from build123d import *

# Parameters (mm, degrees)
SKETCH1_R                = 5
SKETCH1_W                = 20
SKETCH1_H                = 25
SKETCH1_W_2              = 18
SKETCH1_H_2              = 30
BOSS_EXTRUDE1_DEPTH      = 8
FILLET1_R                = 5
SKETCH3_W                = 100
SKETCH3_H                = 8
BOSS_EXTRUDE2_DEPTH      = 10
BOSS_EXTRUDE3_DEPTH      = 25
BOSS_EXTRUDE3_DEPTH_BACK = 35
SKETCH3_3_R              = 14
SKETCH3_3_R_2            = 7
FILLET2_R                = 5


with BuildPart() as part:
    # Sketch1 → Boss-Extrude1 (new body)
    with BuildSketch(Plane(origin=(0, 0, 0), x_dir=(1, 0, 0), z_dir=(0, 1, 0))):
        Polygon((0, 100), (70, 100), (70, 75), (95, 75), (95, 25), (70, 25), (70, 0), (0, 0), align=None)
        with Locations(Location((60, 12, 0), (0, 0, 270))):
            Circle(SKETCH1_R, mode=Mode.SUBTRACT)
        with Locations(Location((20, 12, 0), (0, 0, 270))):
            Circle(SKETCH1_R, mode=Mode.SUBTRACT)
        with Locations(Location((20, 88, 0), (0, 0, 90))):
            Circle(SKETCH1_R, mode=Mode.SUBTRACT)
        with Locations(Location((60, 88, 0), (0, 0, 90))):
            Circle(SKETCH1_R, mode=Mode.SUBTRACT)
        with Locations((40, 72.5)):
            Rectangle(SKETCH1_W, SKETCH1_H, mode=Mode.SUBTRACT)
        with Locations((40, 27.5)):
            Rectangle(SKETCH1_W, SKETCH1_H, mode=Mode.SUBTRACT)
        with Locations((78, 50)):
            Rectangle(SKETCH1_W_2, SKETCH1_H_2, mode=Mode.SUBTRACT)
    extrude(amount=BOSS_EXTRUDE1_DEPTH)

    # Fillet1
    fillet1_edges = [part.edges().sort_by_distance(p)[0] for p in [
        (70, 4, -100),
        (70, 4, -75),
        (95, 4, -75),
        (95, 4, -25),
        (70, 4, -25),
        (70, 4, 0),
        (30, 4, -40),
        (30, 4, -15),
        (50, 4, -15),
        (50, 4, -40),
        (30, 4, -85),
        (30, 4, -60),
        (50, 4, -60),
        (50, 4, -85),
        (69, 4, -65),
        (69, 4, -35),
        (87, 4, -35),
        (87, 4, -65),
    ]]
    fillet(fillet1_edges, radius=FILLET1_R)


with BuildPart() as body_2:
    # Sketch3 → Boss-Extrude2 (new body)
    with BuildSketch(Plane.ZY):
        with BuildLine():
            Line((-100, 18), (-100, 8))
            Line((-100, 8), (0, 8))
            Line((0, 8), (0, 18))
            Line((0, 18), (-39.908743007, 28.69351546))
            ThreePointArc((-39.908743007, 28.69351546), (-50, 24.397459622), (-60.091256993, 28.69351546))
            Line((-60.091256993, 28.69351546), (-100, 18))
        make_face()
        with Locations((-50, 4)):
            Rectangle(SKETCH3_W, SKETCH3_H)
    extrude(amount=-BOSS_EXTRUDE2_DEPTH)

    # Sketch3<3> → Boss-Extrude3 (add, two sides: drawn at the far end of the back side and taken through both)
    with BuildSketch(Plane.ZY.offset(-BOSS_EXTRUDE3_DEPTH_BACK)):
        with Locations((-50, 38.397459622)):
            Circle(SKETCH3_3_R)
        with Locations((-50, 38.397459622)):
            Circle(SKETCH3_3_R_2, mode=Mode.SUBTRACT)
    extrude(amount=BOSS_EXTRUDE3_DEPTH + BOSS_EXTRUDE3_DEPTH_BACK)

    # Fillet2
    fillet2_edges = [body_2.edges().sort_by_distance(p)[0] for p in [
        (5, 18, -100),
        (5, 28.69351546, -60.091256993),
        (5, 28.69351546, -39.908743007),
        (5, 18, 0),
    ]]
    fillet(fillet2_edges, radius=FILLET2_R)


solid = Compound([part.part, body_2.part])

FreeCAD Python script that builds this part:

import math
import FreeCAD as App
import Part
import Sketcher
from FreeCAD import Vector
Q = App.Units.Quantity


def edges_at(feature, points):
    """Names of the edges that pass closest to the given points."""
    edges = feature.Shape.Edges
    near = lambda p: min(range(len(edges)), key=lambda i: edges[i].distToShape(Part.Vertex(*p))[0])
    return sorted({f"Edge{near(p) + 1}" for p in points})

doc = App.newDocument("Part")
body = doc.addObject("PartDesign::Body", "Body")

sketch1 = doc.addObject("Sketcher::SketchObject", "Sketch")
body.addObject(sketch1)
sketch1.AttachmentSupport = (doc.XZ_Plane, [""])
sketch1.MapMode = "FlatFace"
sketch1.addGeometry([
    Part.LineSegment(Vector(70, -100, 0), Vector(0, -100, 0)),
    Part.LineSegment(Vector(0, -100, 0), Vector(0, 0, 0)),
    Part.LineSegment(Vector(0, 0, 0), Vector(70, 0, 0)),
    Part.LineSegment(Vector(70, 0, 0), Vector(70, -25, 0)),
    Part.LineSegment(Vector(70, -25, 0), Vector(95, -25, 0)),
    Part.LineSegment(Vector(95, -25, 0), Vector(95, -75, 0)),
    Part.LineSegment(Vector(95, -75, 0), Vector(70, -75, 0)),
    Part.LineSegment(Vector(70, -75, 0), Vector(70, -100, 0)),
    Part.Circle(Vector(60, -12, 0), Vector(0, 0, 1), 5),
    Part.LineSegment(Vector(30, -15, 0), Vector(30, -40, 0)),
    Part.LineSegment(Vector(30, -40, 0), Vector(50, -40, 0)),
    Part.LineSegment(Vector(50, -40, 0), Vector(50, -15, 0)),
    Part.LineSegment(Vector(50, -15, 0), Vector(30, -15, 0)),
    Part.Circle(Vector(20, -12, 0), Vector(0, 0, 1), 5),
    Part.LineSegment(Vector(69, -35, 0), Vector(69, -65, 0)),
    Part.LineSegment(Vector(69, -65, 0), Vector(87, -65, 0)),
    Part.LineSegment(Vector(87, -65, 0), Vector(87, -35, 0)),
    Part.LineSegment(Vector(87, -35, 0), Vector(69, -35, 0)),
    Part.Circle(Vector(60, -88, 0), Vector(0, 0, 1), 5),
    Part.LineSegment(Vector(30, -60, 0), Vector(30, -85, 0)),
    Part.LineSegment(Vector(30, -85, 0), Vector(50, -85, 0)),
    Part.LineSegment(Vector(50, -85, 0), Vector(50, -60, 0)),
    Part.LineSegment(Vector(50, -60, 0), Vector(30, -60, 0)),
    Part.Circle(Vector(20, -88, 0), Vector(0, 0, 1), 5),
], False)
sketch1.addConstraint([
    Sketcher.Constraint("Coincident", 0, 2, 1, 1),
    Sketcher.Constraint("Coincident", 1, 2, 2, 1),
    Sketcher.Constraint("Coincident", 2, 2, 3, 1),
    Sketcher.Constraint("Coincident", 3, 2, 4, 1),
    Sketcher.Constraint("Coincident", 4, 2, 5, 1),
    Sketcher.Constraint("Coincident", 5, 2, 6, 1),
    Sketcher.Constraint("Coincident", 6, 2, 7, 1),
    Sketcher.Constraint("Coincident", 7, 2, 0, 1),
    Sketcher.Constraint("Coincident", 9, 2, 10, 1),
    Sketcher.Constraint("Coincident", 10, 2, 11, 1),
    Sketcher.Constraint("Coincident", 11, 2, 12, 1),
    Sketcher.Constraint("Coincident", 12, 2, 9, 1),
    Sketcher.Constraint("Coincident", 14, 2, 15, 1),
    Sketcher.Constraint("Coincident", 15, 2, 16, 1),
    Sketcher.Constraint("Coincident", 16, 2, 17, 1),
    Sketcher.Constraint("Coincident", 17, 2, 14, 1),
    Sketcher.Constraint("Coincident", 19, 2, 20, 1),
    Sketcher.Constraint("Coincident", 20, 2, 21, 1),
    Sketcher.Constraint("Coincident", 21, 2, 22, 1),
    Sketcher.Constraint("Coincident", 22, 2, 19, 1),
    Sketcher.Constraint("Horizontal", 0),
    Sketcher.Constraint("Vertical", 1),
    Sketcher.Constraint("Horizontal", 2),
    Sketcher.Constraint("Vertical", 3),
    Sketcher.Constraint("Horizontal", 4),
    Sketcher.Constraint("Vertical", 5),
    Sketcher.Constraint("Horizontal", 6),
    Sketcher.Constraint("Vertical", 7),
    Sketcher.Constraint("Vertical", 9),
    Sketcher.Constraint("Horizontal", 10),
    Sketcher.Constraint("Vertical", 11),
    Sketcher.Constraint("Horizontal", 12),
    Sketcher.Constraint("Vertical", 14),
    Sketcher.Constraint("Horizontal", 15),
    Sketcher.Constraint("Vertical", 16),
    Sketcher.Constraint("Horizontal", 17),
    Sketcher.Constraint("Vertical", 19),
    Sketcher.Constraint("Horizontal", 20),
    Sketcher.Constraint("Vertical", 21),
    Sketcher.Constraint("Horizontal", 22),
    Sketcher.Constraint("Coincident", 1, 2, -1, 1),
    Sketcher.Constraint("Equal", 8, 13),
    Sketcher.Constraint("Equal", 13, 18),
    Sketcher.Constraint("Equal", 18, 23),
    Sketcher.Constraint("Horizontal", 8, 3, 13, 3),
    Sketcher.Constraint("Horizontal", 18, 3, 23, 3),
    Sketcher.Constraint("Vertical", 8, 3, 18, 3),
    Sketcher.Constraint("Vertical", 13, 3, 23, 3),
    Sketcher.Constraint("Vertical", 3, 2, 6, 2),
    Sketcher.Constraint("Vertical", 12, 2, 19, 2),
    Sketcher.Constraint("Vertical", 11, 2, 20, 2),
    Sketcher.Constraint("Equal", 6, 3),
    Sketcher.Constraint("Equal", 3, 7),
    Sketcher.Constraint("Equal", 7, 9),
    Sketcher.Constraint("Equal", 11, 19),
    Sketcher.Constraint("Diameter", 8, 10.0),
    Sketcher.Constraint("DistanceX", 0, 2, 0, 1, 70.0),
    Sketcher.Constraint("DistanceX", 4, 1, 4, 2, 25.0),
    Sketcher.Constraint("DistanceX", 10, 1, 10, 2, 20.0),
    Sketcher.Constraint("DistanceX", 15, 1, 15, 2, 18.0),
    Sketcher.Constraint("DistanceY", 1, 1, 1, 2, 100.0),
    Sketcher.Constraint("DistanceY", 14, 2, 14, 1, 30.0),
    Sketcher.Constraint("DistanceX", -1, 1, 8, 3, 60.0),
    Sketcher.Constraint("DistanceY", 8, 3, -1, 1, 12.0),
    Sketcher.Constraint("DistanceX", -1, 1, 13, 3, 20.0),
    Sketcher.Constraint("DistanceY", 18, 3, -1, 1, 88.0),
    Sketcher.Constraint("DistanceX", -1, 1, 9, 2, 30.0),
    Sketcher.Constraint("DistanceY", 9, 2, -1, 1, 40.0),
    Sketcher.Constraint("DistanceX", -1, 1, 14, 2, 69.0),
    Sketcher.Constraint("DistanceY", 14, 2, -1, 1, 65.0),
    Sketcher.Constraint("DistanceY", 19, 2, -1, 1, 85.0),
])
pad1 = doc.addObject("PartDesign::Pad", "Pad")
body.addObject(pad1)
pad1.Profile = sketch1
pad1.Length = 8
pad1.Reversed = True
doc.recompute()

fillet = doc.addObject("PartDesign::Fillet", "Fillet")
body.addObject(fillet)
fillet.Base = (pad1, edges_at(pad1, [
    (70, 4, -100),
    (70, 4, -75),
    (95, 4, -75),
    (95, 4, -25),
    (70, 4, -25),
    (70, 4, 0),
    (30, 4, -40),
    (30, 4, -15),
    (50, 4, -15),
    (50, 4, -40),
    (30, 4, -85),
    (30, 4, -60),
    (50, 4, -60),
    (50, 4, -85),
    (69, 4, -65),
    (69, 4, -35),
    (87, 4, -35),
    (87, 4, -65),
]))
fillet.Radius = 5
body2 = doc.addObject("PartDesign::Body", "Body001")

sketch2 = doc.addObject("Sketcher::SketchObject", "Sketch001")
body2.addObject(sketch2)
sketch2.AttachmentSupport = (doc.getObject("YZ_Plane001"), [""])
sketch2.MapMode = "FlatFace"
sketch2.addGeometry([
    Part.LineSegment(Vector(18, -100, 0), Vector(0, -100, 0)),
    Part.LineSegment(Vector(0, -100, 0), Vector(0, 0, 0)),
    Part.LineSegment(Vector(0, 0, 0), Vector(18, 0, 0)),
    Part.LineSegment(Vector(18, 0, 0), Vector(29, -40, 0)),
    Part.ArcOfCircle(Part.Circle(Vector(38, -50, 0), Vector(0, 0, 1), 14), math.radians(134), math.radians(226)),
    Part.LineSegment(Vector(29, -60, 0), Vector(18, -100, 0)),
], False)
sketch2.addConstraint([
    Sketcher.Constraint("Coincident", 0, 2, 1, 1),
    Sketcher.Constraint("Coincident", 1, 2, 2, 1),
    Sketcher.Constraint("Coincident", 2, 2, 3, 1),
    Sketcher.Constraint("Coincident", 3, 2, 4, 1),
    Sketcher.Constraint("Coincident", 4, 2, 5, 1),
    Sketcher.Constraint("Coincident", 5, 2, 0, 1),
    Sketcher.Constraint("Horizontal", 0),
    Sketcher.Constraint("Vertical", 1),
    Sketcher.Constraint("Horizontal", 2),
    Sketcher.Constraint("Coincident", 1, 2, -1, 1),
    Sketcher.Constraint("Vertical", 3, 2, 4, 2),
    Sketcher.Constraint("Vertical", 2, 2, 5, 2),
    Sketcher.Constraint("Equal", 3, 5),
    Sketcher.Constraint("Radius", 4, 14.0),
    Sketcher.Constraint("DistanceX", 0, 2, 0, 1, 18.0),
    Sketcher.Constraint("DistanceY", 1, 1, 1, 2, 100.0),
    Sketcher.Constraint("Angle", 3, Q("-75 deg")),
    Sketcher.Constraint("Distance", 3, 41.316571),
])
pad2 = doc.addObject("PartDesign::Pad", "Pad001")
body2.addObject(pad2)
pad2.Profile = sketch2
pad2.Length = 10

sketch3 = doc.addObject("Sketcher::SketchObject", "Sketch002")
body2.addObject(sketch3)
sketch3.AttachmentSupport = (doc.getObject("YZ_Plane001"), [""])
sketch3.MapMode = "FlatFace"
sketch3.addGeometry([
    Part.Circle(Vector(38, -50, 0), Vector(0, 0, 1), 14),
    Part.Circle(Vector(38, -50, 0), Vector(0, 0, 1), 7),
], False)
sketch3.addConstraint([
    Sketcher.Constraint("Coincident", 1, 3, 0, 3),
    Sketcher.Constraint("Diameter", 0, 28.0),
    Sketcher.Constraint("Diameter", 1, 14.0),
    Sketcher.Constraint("DistanceY", 0, 3, -1, 1, 50.0),
    Sketcher.Constraint("DistanceX", -1, 1, 0, 3, 38.39746),
])
pad3 = doc.addObject("PartDesign::Pad", "Pad002")
body2.addObject(pad3)
pad3.Profile = sketch3
pad3.Type = "TwoLengths"
pad3.Length = 25
pad3.Length2 = 35
pad3.Reversed = True
doc.recompute()

fillet2 = doc.addObject("PartDesign::Fillet", "Fillet001")
body2.addObject(fillet2)
fillet2.Base = (pad3, edges_at(pad3, [
    (5, 18, -100),
    (5, 28.694, -60.091),
    (5, 28.694, -39.909),
    (5, 18, 0),
]))
fillet2.Radius = 5

doc.recompute()
